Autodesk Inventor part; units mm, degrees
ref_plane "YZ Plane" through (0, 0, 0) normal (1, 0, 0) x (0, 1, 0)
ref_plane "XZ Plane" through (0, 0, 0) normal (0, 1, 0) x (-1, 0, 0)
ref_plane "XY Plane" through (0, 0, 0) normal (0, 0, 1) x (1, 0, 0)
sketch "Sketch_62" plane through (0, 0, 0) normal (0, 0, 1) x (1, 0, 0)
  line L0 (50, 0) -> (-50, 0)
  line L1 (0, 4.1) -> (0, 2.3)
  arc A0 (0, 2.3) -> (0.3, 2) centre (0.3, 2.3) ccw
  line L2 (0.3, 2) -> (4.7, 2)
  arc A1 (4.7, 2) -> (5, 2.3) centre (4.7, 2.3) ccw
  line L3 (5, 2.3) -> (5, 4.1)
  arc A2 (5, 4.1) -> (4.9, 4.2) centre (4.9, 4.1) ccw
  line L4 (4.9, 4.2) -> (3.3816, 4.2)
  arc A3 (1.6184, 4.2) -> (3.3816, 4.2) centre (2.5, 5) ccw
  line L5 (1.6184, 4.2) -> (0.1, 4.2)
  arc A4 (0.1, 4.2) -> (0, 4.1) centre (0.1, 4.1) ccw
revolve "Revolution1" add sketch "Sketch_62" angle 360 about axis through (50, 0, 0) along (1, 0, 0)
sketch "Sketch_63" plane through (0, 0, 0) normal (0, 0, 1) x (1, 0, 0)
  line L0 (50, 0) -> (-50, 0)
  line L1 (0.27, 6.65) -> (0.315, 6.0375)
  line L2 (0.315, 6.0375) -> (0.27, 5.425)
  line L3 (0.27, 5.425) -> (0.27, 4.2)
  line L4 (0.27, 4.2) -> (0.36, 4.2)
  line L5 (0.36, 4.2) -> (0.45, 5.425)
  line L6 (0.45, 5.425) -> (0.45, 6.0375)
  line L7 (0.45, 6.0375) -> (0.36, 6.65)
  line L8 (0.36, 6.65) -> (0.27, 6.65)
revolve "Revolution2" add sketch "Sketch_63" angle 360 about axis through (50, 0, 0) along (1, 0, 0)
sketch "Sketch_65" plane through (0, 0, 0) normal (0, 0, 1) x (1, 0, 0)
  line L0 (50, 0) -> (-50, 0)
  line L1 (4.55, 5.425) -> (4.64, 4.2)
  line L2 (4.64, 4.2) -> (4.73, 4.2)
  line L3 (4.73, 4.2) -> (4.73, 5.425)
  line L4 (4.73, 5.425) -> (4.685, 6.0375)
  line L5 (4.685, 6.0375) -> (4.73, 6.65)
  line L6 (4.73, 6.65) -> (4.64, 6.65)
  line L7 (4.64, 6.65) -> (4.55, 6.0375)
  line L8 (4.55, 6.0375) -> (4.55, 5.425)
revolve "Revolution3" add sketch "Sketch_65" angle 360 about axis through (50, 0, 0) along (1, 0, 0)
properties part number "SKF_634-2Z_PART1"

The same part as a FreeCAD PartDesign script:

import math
import FreeCAD as App
import Part
import Sketcher
Q = App.Units.Quantity


def add_polygon(sketch, points):
    """Adds a closed chain of lines whose ends are joined by coincident constraints."""
    first, n = sketch.GeometryCount, len(points)
    for a, b in zip(points, points[1:] + points[:1]):
        sketch.addGeometry(Part.LineSegment(App.Vector(*a, 0), App.Vector(*b, 0)), False)
    for i in range(n):
        sketch.addConstraint(Sketcher.Constraint("Coincident", first + i, 2, first + (i + 1) % n, 1))

doc = App.newDocument("Part")
body = doc.addObject("PartDesign::Body", "Body")

# Sketch on XY plane
sketch1 = body.newObject("Sketcher::SketchObject", "Sketch")
sketch1.AttachmentSupport = (doc.getObject("XY_Plane"), [""])
sketch1.MapMode = "FlatFace"
sketch1.addGeometry(Part.ArcOfCircle(Part.Circle(App.Vector(0.1, 4.1, 0), App.Vector(0, 0, 1), 0.1), math.radians(90), math.radians(180)), False)
sketch1.addGeometry(Part.LineSegment(App.Vector(0, 4.1, 0), App.Vector(0, 2.3, 0)), False)
sketch1.addGeometry(Part.ArcOfCircle(Part.Circle(App.Vector(0.3, 2.3, 0), App.Vector(0, 0, 1), 0.3), math.radians(180), math.radians(270)), False)
sketch1.addGeometry(Part.LineSegment(App.Vector(0.3, 2, 0), App.Vector(4.7, 2, 0)), False)
sketch1.addGeometry(Part.ArcOfCircle(Part.Circle(App.Vector(4.7, 2.3, 0), App.Vector(0, 0, 1), 0.3), math.radians(-90), math.radians(0)), False)
sketch1.addGeometry(Part.LineSegment(App.Vector(5, 2.3, 0), App.Vector(5, 4.1, 0)), False)
sketch1.addGeometry(Part.ArcOfCircle(Part.Circle(App.Vector(4.9, 4.1, 0), App.Vector(0, 0, 1), 0.1), math.radians(0), math.radians(90)), False)
sketch1.addGeometry(Part.LineSegment(App.Vector(4.9, 4.2, 0), App.Vector(3.38, 4.2, 0)), False)
sketch1.addGeometry(Part.ArcOfCircle(Part.Circle(App.Vector(2.5, 5, 0), App.Vector(0, 0, 1), 1.19), math.radians(-138), math.radians(-42)), False)
sketch1.addGeometry(Part.LineSegment(App.Vector(1.62, 4.2, 0), App.Vector(0.1, 4.2, 0)), False)
sketch1.addConstraint(Sketcher.Constraint("Tangent", 0, 2, 1, 1))
sketch1.addConstraint(Sketcher.Constraint("Tangent", 1, 2, 2, 1))
sketch1.addConstraint(Sketcher.Constraint("Tangent", 2, 2, 3, 1))
sketch1.addConstraint(Sketcher.Constraint("Tangent", 3, 2, 4, 1))
sketch1.addConstraint(Sketcher.Constraint("Tangent", 4, 2, 5, 1))
sketch1.addConstraint(Sketcher.Constraint("Tangent", 5, 2, 6, 1))
sketch1.addConstraint(Sketcher.Constraint("Tangent", 6, 2, 7, 1))
sketch1.addConstraint(Sketcher.Constraint("Coincident", 7, 2, 8, 2))
sketch1.addConstraint(Sketcher.Constraint("Coincident", 8, 1, 9, 1))
sketch1.addConstraint(Sketcher.Constraint("Tangent", 9, 2, 0, 1))
sketch1.addConstraint(Sketcher.Constraint("Vertical", 1))
sketch1.addConstraint(Sketcher.Constraint("Horizontal", 3))
sketch1.addConstraint(Sketcher.Constraint("Vertical", 5))
sketch1.addConstraint(Sketcher.Constraint("Horizontal", 7))
sketch1.addConstraint(Sketcher.Constraint("Horizontal", 9))
sketch1.addConstraint(Sketcher.Constraint("Equal", 2, 4))
sketch1.addConstraint(Sketcher.Constraint("Equal", 0, 6))
sketch1.addConstraint(Sketcher.Constraint("PointOnObject", 0, 2, -2))
sketch1.addConstraint(Sketcher.Constraint("Horizontal", 0, 3, 6, 3))
sketch1.addConstraint(Sketcher.Constraint("Equal", 7, 9))
sketch1.addConstraint(Sketcher.Constraint("Radius", 0, 0.1))
sketch1.addConstraint(Sketcher.Constraint("Radius", 2, 0.3))
sketch1.addConstraint(Sketcher.Constraint("DistanceX", 3, 1, 3, 2, 4.4))
sketch1.addConstraint(Sketcher.Constraint("DistanceY", 1, 2, 1, 1, 1.8))
sketch1.addConstraint(Sketcher.Constraint("DistanceY", -1, 1, 8, 3, 5.0))
sketch1.addConstraint(Sketcher.Constraint("DistanceY", -1, 1, 2, 2, 2.0))
sketch1.addConstraint(Sketcher.Constraint("Radius", 8, 1.1905))
revolution = body.newObject("PartDesign::Revolution", "Revolution")
revolution.Profile = sketch1
revolution.ReferenceAxis = (sketch1, ["H_Axis"])
revolution.Angle = 360

# Sketch on XY plane
sketch2 = body.newObject("Sketcher::SketchObject", "Sketch001")
sketch2.AttachmentSupport = (doc.getObject("XY_Plane"), [""])
sketch2.MapMode = "FlatFace"
add_polygon(sketch2, [(0.36, 6.65), (0.27, 6.65), (0.32, 6.04), (0.27, 5.42), (0.27, 4.2), (0.36, 4.2), (0.45, 5.42), (0.45, 6.04)])  # lines 0-7
sketch2.addConstraint(Sketcher.Constraint("Horizontal", 0))
sketch2.addConstraint(Sketcher.Constraint("Vertical", 3))
sketch2.addConstraint(Sketcher.Constraint("Horizontal", 4))
sketch2.addConstraint(Sketcher.Constraint("Vertical", 6))
sketch2.addConstraint(Sketcher.Constraint("Parallel", 2, 5))
sketch2.addConstraint(Sketcher.Constraint("Horizontal", 2, 2, 5, 2))
sketch2.addConstraint(Sketcher.Constraint("Horizontal", 1, 2, 6, 2))
sketch2.addConstraint(Sketcher.Constraint("Vertical", 0, 2, 2, 2))
sketch2.addConstraint(Sketcher.Constraint("Vertical", 4, 2, 7, 2))
sketch2.addConstraint(Sketcher.Constraint("Equal", 1, 2))
sketch2.addConstraint(Sketcher.Constraint("DistanceX", 0, 2, 0, 1, 0.09))
sketch2.addConstraint(Sketcher.Constraint("DistanceY", -1, 1, 3, 2, 4.2))
sketch2.addConstraint(Sketcher.Constraint("Angle", 7, Q("98.3592 deg")))
sketch2.addConstraint(Sketcher.Constraint("DistanceY", 3, 2, 3, 1, 1.225))
sketch2.addConstraint(Sketcher.Constraint("DistanceX", -1, 1, 0, 2, 0.27))
sketch2.addConstraint(Sketcher.Constraint("DistanceY", -1, 1, 0, 2, 6.65))
revolution2 = body.newObject("PartDesign::Revolution", "Revolution001")
revolution2.Profile = sketch2
revolution2.ReferenceAxis = (sketch2, ["H_Axis"])
revolution2.Angle = 360

# Sketch on XY plane
sketch3 = body.newObject("Sketcher::SketchObject", "Sketch002")
sketch3.AttachmentSupport = (doc.getObject("XY_Plane"), [""])
sketch3.MapMode = "FlatFace"
add_polygon(sketch3, [(4.55, 6.04), (4.55, 5.42), (4.64, 4.2), (4.73, 4.2), (4.73, 5.42), (4.68, 6.04), (4.73, 6.65), (4.64, 6.65)])  # lines 0-7
sketch3.addConstraint(Sketcher.Constraint("Vertical", 0))
sketch3.addConstraint(Sketcher.Constraint("Horizontal", 2))
sketch3.addConstraint(Sketcher.Constraint("Vertical", 3))
sketch3.addConstraint(Sketcher.Constraint("Horizontal", 6))
sketch3.addConstraint(Sketcher.Constraint("Parallel", 1, 4))
sketch3.addConstraint(Sketcher.Constraint("Horizontal", 0, 2, 3, 2))
sketch3.addConstraint(Sketcher.Constraint("Horizontal", 4, 2, 7, 2))
sketch3.addConstraint(Sketcher.Constraint("Vertical", 3, 2, 5, 2))
sketch3.addConstraint(Sketcher.Constraint("Vertical", 1, 2, 6, 2))
sketch3.addConstraint(Sketcher.Constraint("Equal", 4, 5))
sketch3.addConstraint(Sketcher.Constraint("DistanceX", 2, 1, 2, 2, 0.09))
sketch3.addConstraint(Sketcher.Constraint("DistanceY", -1, 1, 1, 2, 4.2))
sketch3.addConstraint(Sketcher.Constraint("Angle", 7, Q("-98.3592 deg")))
sketch3.addConstraint(Sketcher.Constraint("DistanceY", 3, 1, 3, 2, 1.225))
sketch3.addConstraint(Sketcher.Constraint("DistanceX", -1, 1, 0, 2, 4.55))
sketch3.addConstraint(Sketcher.Constraint("DistanceX", -1, 1, 1, 2, 4.64))
revolution3 = body.newObject("PartDesign::Revolution", "Revolution002")
revolution3.Profile = sketch3
revolution3.ReferenceAxis = (sketch3, ["H_Axis"])
revolution3.Angle = 360

doc.recompute()
